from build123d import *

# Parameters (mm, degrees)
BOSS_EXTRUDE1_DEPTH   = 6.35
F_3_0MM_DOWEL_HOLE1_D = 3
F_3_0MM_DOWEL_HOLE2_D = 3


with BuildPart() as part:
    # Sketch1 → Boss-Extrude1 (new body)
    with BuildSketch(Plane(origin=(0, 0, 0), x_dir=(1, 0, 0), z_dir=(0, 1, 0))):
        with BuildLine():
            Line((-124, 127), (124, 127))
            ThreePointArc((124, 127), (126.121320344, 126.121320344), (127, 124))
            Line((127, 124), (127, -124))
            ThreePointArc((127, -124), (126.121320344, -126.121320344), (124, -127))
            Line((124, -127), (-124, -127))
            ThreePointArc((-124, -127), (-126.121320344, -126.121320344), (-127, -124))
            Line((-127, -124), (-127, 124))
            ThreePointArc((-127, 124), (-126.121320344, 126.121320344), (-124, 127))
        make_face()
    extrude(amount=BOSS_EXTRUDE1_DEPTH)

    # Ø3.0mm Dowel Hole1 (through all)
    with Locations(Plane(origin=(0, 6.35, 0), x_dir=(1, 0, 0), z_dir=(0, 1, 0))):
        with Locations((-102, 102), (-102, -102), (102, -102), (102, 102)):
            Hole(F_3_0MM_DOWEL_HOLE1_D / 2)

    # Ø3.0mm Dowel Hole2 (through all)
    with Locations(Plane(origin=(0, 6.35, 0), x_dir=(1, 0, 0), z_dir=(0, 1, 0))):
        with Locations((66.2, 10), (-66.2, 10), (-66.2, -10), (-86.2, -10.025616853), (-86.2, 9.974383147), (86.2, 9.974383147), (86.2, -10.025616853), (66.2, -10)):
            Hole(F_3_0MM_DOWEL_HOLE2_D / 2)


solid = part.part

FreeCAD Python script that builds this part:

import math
import FreeCAD as App
import Part
import Sketcher
Q = App.Units.Quantity

doc = App.newDocument("Part")
body = doc.addObject("PartDesign::Body", "Body")

sketch1 = body.newObject("Sketcher::SketchObject", "Sketch")
sketch1.AttachmentSupport = (doc.getObject("XZ_Plane"), [""])
sketch1.MapMode = "FlatFace"
sketch1.addGeometry([
    Part.LineSegment(App.Vector(124, -127, 0), App.Vector(-124, -127, 0)),
    Part.ArcOfCircle(Part.Circle(App.Vector(-124, -124, 0), App.Vector(0, 0, 1), 3), math.radians(180), math.radians(270)),
    Part.LineSegment(App.Vector(-127, -124, 0), App.Vector(-127, 124, 0)),
    Part.ArcOfCircle(Part.Circle(App.Vector(-124, 124, 0), App.Vector(0, 0, 1), 3), math.radians(90), math.radians(180)),
    Part.LineSegment(App.Vector(-124, 127, 0), App.Vector(124, 127, 0)),
    Part.ArcOfCircle(Part.Circle(App.Vector(124, 124, 0), App.Vector(0, 0, 1), 3), math.radians(0), math.radians(90)),
    Part.LineSegment(App.Vector(127, 124, 0), App.Vector(127, -124, 0)),
    Part.ArcOfCircle(Part.Circle(App.Vector(124, -124, 0), App.Vector(0, 0, 1), 3), math.radians(-90), math.radians(0)),
], False)
sketch1.addConstraint([
    Sketcher.Constraint("Tangent", 0, 2, 1, 2),
    Sketcher.Constraint("Tangent", 1, 1, 2, 1),
    Sketcher.Constraint("Tangent", 2, 2, 3, 2),
    Sketcher.Constraint("Tangent", 3, 1, 4, 1),
    Sketcher.Constraint("Tangent", 4, 2, 5, 2),
    Sketcher.Constraint("Tangent", 5, 1, 6, 1),
    Sketcher.Constraint("Tangent", 6, 2, 7, 2),
    Sketcher.Constraint("Tangent", 7, 1, 0, 1),
    Sketcher.Constraint("Horizontal", 0),
    Sketcher.Constraint("Vertical", 2),
    Sketcher.Constraint("Horizontal", 4),
    Sketcher.Constraint("Vertical", 6),
    Sketcher.Constraint("Equal", 1, 3),
    Sketcher.Constraint("Equal", 3, 5),
    Sketcher.Constraint("Equal", 5, 7),
    Sketcher.Constraint("Symmetric", 1, 3, 5, 3, -1, 1),
    Sketcher.Constraint("Equal", 4, 2),
    Sketcher.Constraint("Radius", 1, Q("3 mm")),
    Sketcher.Constraint("DistanceX", 0, 2, 0, 1, Q("248 mm")),
])
pad1 = body.newObject("PartDesign::Pad", "Pad")
pad1.Profile = sketch1
pad1.Length = 6.35
pad1.Reversed = True

sketch2 = body.newObject("Sketcher::SketchObject", "Sketch001")
sketch2.AttachmentSupport = (doc.getObject("XZ_Plane"), [""])
sketch2.MapMode = "FlatFace"
sketch2.AttachmentOffset = App.Placement(App.Vector(0, 0, -6.35), App.Rotation())
sketch2.addGeometry([
    Part.Circle(App.Vector(-102, -102, 0), App.Vector(0, 0, 1), 1.5),
    Part.Circle(App.Vector(-102, 102, 0), App.Vector(0, 0, 1), 1.5),
    Part.Circle(App.Vector(102, 102, 0), App.Vector(0, 0, 1), 1.5),
    Part.Circle(App.Vector(102, -102, 0), App.Vector(0, 0, 1), 1.5),
], False)
sketch2.addConstraint([
    Sketcher.Constraint("Equal", 0, 1),
    Sketcher.Constraint("Equal", 1, 2),
    Sketcher.Constraint("Equal", 2, 3),
    Sketcher.Constraint("Symmetric", 0, 3, 2, 3, -1, 1),
    Sketcher.Constraint("Symmetric", 1, 3, 3, 3, -1, 1),
    Sketcher.Constraint("Symmetric", 1, 3, 2, 3, -2),
    Sketcher.Constraint("Diameter", 0, Q("3 mm")),
    Sketcher.Constraint("DistanceX", 0, 3, -1, 1, Q("102 mm")),
    Sketcher.Constraint("DistanceY", 0, 3, -1, 1, Q("102 mm")),
])
doc.recompute()
hole = body.newObject("PartDesign::Hole", "Hole")
hole.Profile = sketch2
hole.ThreadType = "None"
hole.Diameter = 3
hole.DepthType = "ThroughAll"
hole.Reversed = True

sketch3 = body.newObject("Sketcher::SketchObject", "Sketch002")
sketch3.AttachmentSupport = (doc.getObject("XZ_Plane"), [""])
sketch3.MapMode = "FlatFace"
sketch3.AttachmentOffset = App.Placement(App.Vector(0, 0, -6.35), App.Rotation())
sketch3.addGeometry([
    Part.Circle(App.Vector(66.2, -10, 0), App.Vector(0, 0, 1), 1.5),
    Part.Circle(App.Vector(-66.2, -10, 0), App.Vector(0, 0, 1), 1.5),
    Part.Circle(App.Vector(-66.2, 10, 0), App.Vector(0, 0, 1), 1.5),
    Part.Circle(App.Vector(-86.2, 10, 0), App.Vector(0, 0, 1), 1.5),
    Part.Circle(App.Vector(-86.2, -10, 0), App.Vector(0, 0, 1), 1.5),
    Part.Circle(App.Vector(86.2, -10, 0), App.Vector(0, 0, 1), 1.5),
    Part.Circle(App.Vector(86.2, 10, 0), App.Vector(0, 0, 1), 1.5),
    Part.Circle(App.Vector(66.2, 10, 0), App.Vector(0, 0, 1), 1.5),
], False)
sketch3.addConstraint([
    Sketcher.Constraint("Equal", 0, 1),
    Sketcher.Constraint("Equal", 1, 2),
    Sketcher.Constraint("Equal", 2, 3),
    Sketcher.Constraint("Equal", 3, 4),
    Sketcher.Constraint("Equal", 4, 5),
    Sketcher.Constraint("Equal", 5, 6),
    Sketcher.Constraint("Equal", 6, 7),
    Sketcher.Constraint("Symmetric", 0, 3, 2, 3, -1, 1),
    Sketcher.Constraint("Symmetric", 1, 3, 7, 3, -1, 1),
    Sketcher.Constraint("Symmetric", 0, 3, 1, 3, -2),
    Sketcher.Constraint("Symmetric", 4, 3, 5, 3, -2),
    Sketcher.Constraint("Symmetric", 3, 3, 6, 3, -2),
    Sketcher.Constraint("Vertical", 3, 3, 4, 3),
    Sketcher.Constraint("Diameter", 0, Q("3 mm")),
    Sketcher.Constraint("DistanceY", 0, 3, -1, 1, Q("10 mm")),
    Sketcher.Constraint("DistanceX", 3, 3, 2, 3, Q("20 mm")),
    Sketcher.Constraint("DistanceY", 4, 3, 3, 3, Q("20 mm")),
    Sketcher.Constraint("DistanceX", -1, 1, 0, 3, Q("66.2 mm")),
    Sketcher.Constraint("DistanceY", -1, 1, 3, 3, Q("10.025617 mm")),
])
doc.recompute()
hole2 = body.newObject("PartDesign::Hole", "Hole001")
hole2.Profile = sketch3
hole2.ThreadType = "None"
hole2.Diameter = 3
hole2.DepthType = "ThroughAll"
hole2.Reversed = True

doc.recompute()
